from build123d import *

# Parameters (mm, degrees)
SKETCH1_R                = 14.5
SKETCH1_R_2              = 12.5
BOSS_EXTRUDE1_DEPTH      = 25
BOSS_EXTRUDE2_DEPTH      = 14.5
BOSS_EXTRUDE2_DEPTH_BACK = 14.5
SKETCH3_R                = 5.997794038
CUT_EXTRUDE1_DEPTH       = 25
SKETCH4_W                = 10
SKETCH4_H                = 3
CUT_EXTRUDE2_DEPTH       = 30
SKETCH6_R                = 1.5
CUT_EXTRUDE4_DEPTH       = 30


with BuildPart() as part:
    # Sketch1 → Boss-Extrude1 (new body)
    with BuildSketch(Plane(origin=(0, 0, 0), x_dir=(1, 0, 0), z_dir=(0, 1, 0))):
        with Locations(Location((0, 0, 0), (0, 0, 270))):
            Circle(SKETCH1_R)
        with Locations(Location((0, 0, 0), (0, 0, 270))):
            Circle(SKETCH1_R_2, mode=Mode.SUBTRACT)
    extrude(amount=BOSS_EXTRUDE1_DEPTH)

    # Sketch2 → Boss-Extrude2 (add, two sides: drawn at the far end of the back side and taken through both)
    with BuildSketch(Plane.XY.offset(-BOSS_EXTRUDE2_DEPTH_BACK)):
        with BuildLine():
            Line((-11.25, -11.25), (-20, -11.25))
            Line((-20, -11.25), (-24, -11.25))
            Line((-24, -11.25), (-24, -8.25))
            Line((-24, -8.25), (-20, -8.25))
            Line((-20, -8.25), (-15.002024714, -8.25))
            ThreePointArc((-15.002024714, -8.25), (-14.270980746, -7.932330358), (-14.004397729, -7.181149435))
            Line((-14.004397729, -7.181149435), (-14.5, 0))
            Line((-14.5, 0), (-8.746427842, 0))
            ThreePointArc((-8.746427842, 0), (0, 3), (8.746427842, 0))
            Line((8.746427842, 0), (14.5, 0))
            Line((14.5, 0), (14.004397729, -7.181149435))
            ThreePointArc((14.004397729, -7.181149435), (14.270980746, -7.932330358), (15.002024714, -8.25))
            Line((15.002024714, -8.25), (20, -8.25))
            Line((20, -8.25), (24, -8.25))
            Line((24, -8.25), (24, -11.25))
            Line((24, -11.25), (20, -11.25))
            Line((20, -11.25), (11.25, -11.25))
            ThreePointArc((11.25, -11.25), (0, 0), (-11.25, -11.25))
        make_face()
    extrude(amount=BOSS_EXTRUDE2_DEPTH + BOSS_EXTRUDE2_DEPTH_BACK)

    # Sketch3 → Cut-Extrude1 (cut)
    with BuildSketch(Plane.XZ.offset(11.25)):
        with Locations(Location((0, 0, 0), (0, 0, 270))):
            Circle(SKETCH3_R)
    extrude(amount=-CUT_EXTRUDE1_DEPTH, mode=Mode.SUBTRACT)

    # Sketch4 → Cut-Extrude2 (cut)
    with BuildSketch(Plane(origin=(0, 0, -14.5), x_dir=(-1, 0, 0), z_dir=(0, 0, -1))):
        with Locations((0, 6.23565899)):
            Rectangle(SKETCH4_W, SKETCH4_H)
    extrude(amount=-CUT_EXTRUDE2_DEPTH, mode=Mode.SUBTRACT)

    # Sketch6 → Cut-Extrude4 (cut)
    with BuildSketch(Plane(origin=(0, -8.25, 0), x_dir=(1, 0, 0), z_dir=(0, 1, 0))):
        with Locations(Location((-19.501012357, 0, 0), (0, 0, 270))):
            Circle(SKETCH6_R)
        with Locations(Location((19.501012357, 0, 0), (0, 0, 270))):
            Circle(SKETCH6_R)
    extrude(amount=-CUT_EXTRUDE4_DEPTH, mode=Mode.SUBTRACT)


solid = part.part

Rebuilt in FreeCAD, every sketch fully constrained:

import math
import FreeCAD as App
import Part
import Sketcher
from FreeCAD import Vector
Q = App.Units.Quantity


def add_polygon(sketch, points):
    """Adds a closed chain of lines whose ends are joined by coincident constraints."""
    first, n = sketch.GeometryCount, len(points)
    for a, b in zip(points, points[1:] + points[:1]):
        sketch.addGeometry(Part.LineSegment(App.Vector(*a, 0), App.Vector(*b, 0)), False)
    for i in range(n):
        sketch.addConstraint(Sketcher.Constraint("Coincident", first + i, 2, first + (i + 1) % n, 1))

doc = App.newDocument("Part")
body = doc.addObject("PartDesign::Body", "Body")

sketch1 = body.newObject("Sketcher::SketchObject", "Sketch")
sketch1.AttachmentSupport = (doc.getObject("XZ_Plane"), [""])
sketch1.MapMode = "FlatFace"
sketch1.addGeometry([
    Part.Circle(Vector(0, 0, 0), Vector(0, 0, 1), 14),
    Part.Circle(Vector(0, 0, 0), Vector(0, 0, 1), 12),
], False)
sketch1.addConstraint([
    Sketcher.Constraint("Coincident", 0, 3, -1, 1),
    Sketcher.Constraint("Coincident", 1, 3, -1, 1),
    Sketcher.Constraint("Diameter", 0, Q("29 mm")),
    Sketcher.Constraint("Diameter", 1, Q("25 mm")),
])
pad1 = body.newObject("PartDesign::Pad", "Pad")
pad1.Profile = sketch1
pad1.Length = 25
pad1.Reversed = True

sketch2 = body.newObject("Sketcher::SketchObject", "Sketch001")
sketch2.AttachmentSupport = (doc.getObject("XY_Plane"), [""])
sketch2.MapMode = "FlatFace"
sketch2.addGeometry([
    Part.LineSegment(Vector(-24, -11.2, 0), Vector(-11.2, -11.2, 0)),
    Part.ArcOfCircle(Part.Circle(Vector(0, -11.2, 0), Vector(0, 0, 1), 11.2), math.radians(0), math.radians(180)),
    Part.LineSegment(Vector(11.2, -11.2, 0), Vector(24, -11.2, 0)),
    Part.LineSegment(Vector(24, -11.2, 0), Vector(24, -8.2, 0)),
    Part.LineSegment(Vector(24, -8.2, 0), Vector(15, -8.2, 0)),
    Part.ArcOfCircle(Part.Circle(Vector(15, -7.2, 0), Vector(0, 0, 1), 1), math.radians(176), math.radians(270)),
    Part.LineSegment(Vector(14, -7.2, 0), Vector(14.5, 0, 0)),
    Part.LineSegment(Vector(14.5, 0, 0), Vector(8.7, 0, 0)),
    Part.ArcOfCircle(Part.Circle(Vector(0, -11.2, 0), Vector(0, 0, 1), 14.2), math.radians(52), math.radians(128)),
    Part.LineSegment(Vector(-8.7, 0, 0), Vector(-14.5, 0, 0)),
    Part.LineSegment(Vector(-14.5, 0, 0), Vector(-14, -7.2, 0)),
    Part.ArcOfCircle(Part.Circle(Vector(-15, -7.2, 0), Vector(0, 0, 1), 1), math.radians(-90), math.radians(4)),
    Part.LineSegment(Vector(-15, -8.2, 0), Vector(-24, -8.2, 0)),
    Part.LineSegment(Vector(-24, -8.2, 0), Vector(-24, -11.2, 0)),
], False)
sketch2.addConstraint([
    Sketcher.Constraint("Coincident", 0, 2, 1, 2),
    Sketcher.Constraint("Coincident", 1, 1, 2, 1),
    Sketcher.Constraint("Coincident", 2, 2, 3, 1),
    Sketcher.Constraint("Coincident", 3, 2, 4, 1),
    Sketcher.Constraint("Tangent", 4, 2, 5, 2),
    Sketcher.Constraint("Tangent", 5, 1, 6, 1),
    Sketcher.Constraint("Coincident", 6, 2, 7, 1),
    Sketcher.Constraint("Coincident", 7, 2, 8, 1),
    Sketcher.Constraint("Coincident", 8, 2, 9, 1),
    Sketcher.Constraint("Coincident", 9, 2, 10, 1),
    Sketcher.Constraint("Tangent", 10, 2, 11, 2),
    Sketcher.Constraint("Tangent", 11, 1, 12, 1),
    Sketcher.Constraint("Coincident", 12, 2, 13, 1),
    Sketcher.Constraint("Coincident", 13, 2, 0, 1),
    Sketcher.Constraint("Horizontal", 0),
    Sketcher.Constraint("Horizontal", 2),
    Sketcher.Constraint("Vertical", 3),
    Sketcher.Constraint("Horizontal", 4),
    Sketcher.Constraint("Horizontal", 7),
    Sketcher.Constraint("Horizontal", 9),
    Sketcher.Constraint("Horizontal", 12),
    Sketcher.Constraint("Vertical", 13),
    Sketcher.Constraint("Coincident", 8, 3, 1, 3),
    Sketcher.Constraint("Equal", 5, 11),
    Sketcher.Constraint("Symmetric", 7, 2, 8, 2, -1, 1),
    Sketcher.Constraint("Symmetric", 5, 3, 11, 3, -2),
    Sketcher.Constraint("Symmetric", 0, 2, 1, 1, -2),
    Sketcher.Constraint("Horizontal", 8, 3, 0, 2),
    Sketcher.Constraint("Horizontal", 5, 1, 10, 2),
    Sketcher.Constraint("Equal", 0, 2),
    Sketcher.Constraint("Radius", 5, Q("1 mm")),
    Sketcher.Constraint("DistanceY", 3, 1, 3, 2, Q("3 mm")),
    Sketcher.Constraint("Radius", 1, Q("11.25 mm")),
    Sketcher.Constraint("Radius", 8, Q("14.25 mm")),
    Sketcher.Constraint("DistanceX", -1, 1, 2, 2, Q("24 mm")),
    Sketcher.Constraint("DistanceX", -1, 1, 6, 2, Q("14.5 mm")),
    Sketcher.Constraint("DistanceY", 1, 3, -1, 1, Q("11.25 mm")),
    Sketcher.Constraint("Distance", 6, Q("7.198231 mm")),
])
pad2 = body.newObject("PartDesign::Pad", "Pad001")
pad2.Profile = sketch2
pad2.Type = "TwoLengths"
pad2.Length = 14.5
pad2.Length2 = 14.5

sketch3 = body.newObject("Sketcher::SketchObject", "Sketch002")
sketch3.AttachmentSupport = (doc.getObject("XZ_Plane"), [""])
sketch3.MapMode = "FlatFace"
sketch3.AttachmentOffset = App.Placement(Vector(0, 0, 11.25), App.Rotation())
sketch3.addGeometry(Part.Circle(Vector(0, 0, 0), Vector(0, 0, 1), 6), False)
sketch3.addConstraint([
    Sketcher.Constraint("Coincident", 0, 3, -1, 1),
    Sketcher.Constraint("Diameter", 0, Q("11.995588 mm")),
])
pocket1 = body.newObject("PartDesign::Pocket", "Pocket")
pocket1.Profile = sketch3
pocket1.Length = 25

sketch4 = body.newObject("Sketcher::SketchObject", "Sketch003")
sketch4.AttachmentSupport = (doc.getObject("XY_Plane"), [""])
sketch4.MapMode = "FlatFace"
sketch4.AttachmentOffset = App.Placement(Vector(0, 0, -14.5), App.Rotation())
add_polygon(sketch4, [(5, 7.7), (5, 4.7), (-5, 4.7), (-5, 7.7)])
sketch4.addConstraint([
    Sketcher.Constraint("Vertical", 0),
    Sketcher.Constraint("Horizontal", 1),
    Sketcher.Constraint("Vertical", 2),
    Sketcher.Constraint("Horizontal", 3),
    Sketcher.Constraint("DistanceX", 1, 2, 1, 1, Q("10 mm")),
    Sketcher.Constraint("DistanceY", 0, 2, 0, 1, Q("3 mm")),
    Sketcher.Constraint("DistanceX", -1, 1, 0, 2, Q("5 mm")),
    Sketcher.Constraint("DistanceY", -1, 1, 0, 2, Q("4.735659 mm")),
])
pocket2 = body.newObject("PartDesign::Pocket", "Pocket001")
pocket2.Profile = sketch4
pocket2.Length = 30
pocket2.Reversed = True

sketch5 = body.newObject("Sketcher::SketchObject", "Sketch004")
sketch5.AttachmentSupport = (doc.getObject("XZ_Plane"), [""])
sketch5.MapMode = "FlatFace"
sketch5.AttachmentOffset = App.Placement(Vector(0, 0, 8.25), App.Rotation())
sketch5.addGeometry([
    Part.Circle(Vector(-19.5, 0, 0), Vector(0, 0, 1), 1.5),
    Part.Circle(Vector(19.5, 0, 0), Vector(0, 0, 1), 1.5),
], False)
sketch5.addConstraint([
    Sketcher.Constraint("Equal", 0, 1),
    Sketcher.Constraint("Symmetric", 0, 3, 1, 3, -1, 1),
    Sketcher.Constraint("PointOnObject", 0, 3, -1),
    Sketcher.Constraint("Diameter", 0, Q("3 mm")),
    Sketcher.Constraint("DistanceX", 0, 3, -1, 1, Q("19.501012 mm")),
])
pocket3 = body.newObject("PartDesign::Pocket", "Pocket002")
pocket3.Profile = sketch5
pocket3.Length = 30
pocket3.Reversed = True

doc.recompute()
